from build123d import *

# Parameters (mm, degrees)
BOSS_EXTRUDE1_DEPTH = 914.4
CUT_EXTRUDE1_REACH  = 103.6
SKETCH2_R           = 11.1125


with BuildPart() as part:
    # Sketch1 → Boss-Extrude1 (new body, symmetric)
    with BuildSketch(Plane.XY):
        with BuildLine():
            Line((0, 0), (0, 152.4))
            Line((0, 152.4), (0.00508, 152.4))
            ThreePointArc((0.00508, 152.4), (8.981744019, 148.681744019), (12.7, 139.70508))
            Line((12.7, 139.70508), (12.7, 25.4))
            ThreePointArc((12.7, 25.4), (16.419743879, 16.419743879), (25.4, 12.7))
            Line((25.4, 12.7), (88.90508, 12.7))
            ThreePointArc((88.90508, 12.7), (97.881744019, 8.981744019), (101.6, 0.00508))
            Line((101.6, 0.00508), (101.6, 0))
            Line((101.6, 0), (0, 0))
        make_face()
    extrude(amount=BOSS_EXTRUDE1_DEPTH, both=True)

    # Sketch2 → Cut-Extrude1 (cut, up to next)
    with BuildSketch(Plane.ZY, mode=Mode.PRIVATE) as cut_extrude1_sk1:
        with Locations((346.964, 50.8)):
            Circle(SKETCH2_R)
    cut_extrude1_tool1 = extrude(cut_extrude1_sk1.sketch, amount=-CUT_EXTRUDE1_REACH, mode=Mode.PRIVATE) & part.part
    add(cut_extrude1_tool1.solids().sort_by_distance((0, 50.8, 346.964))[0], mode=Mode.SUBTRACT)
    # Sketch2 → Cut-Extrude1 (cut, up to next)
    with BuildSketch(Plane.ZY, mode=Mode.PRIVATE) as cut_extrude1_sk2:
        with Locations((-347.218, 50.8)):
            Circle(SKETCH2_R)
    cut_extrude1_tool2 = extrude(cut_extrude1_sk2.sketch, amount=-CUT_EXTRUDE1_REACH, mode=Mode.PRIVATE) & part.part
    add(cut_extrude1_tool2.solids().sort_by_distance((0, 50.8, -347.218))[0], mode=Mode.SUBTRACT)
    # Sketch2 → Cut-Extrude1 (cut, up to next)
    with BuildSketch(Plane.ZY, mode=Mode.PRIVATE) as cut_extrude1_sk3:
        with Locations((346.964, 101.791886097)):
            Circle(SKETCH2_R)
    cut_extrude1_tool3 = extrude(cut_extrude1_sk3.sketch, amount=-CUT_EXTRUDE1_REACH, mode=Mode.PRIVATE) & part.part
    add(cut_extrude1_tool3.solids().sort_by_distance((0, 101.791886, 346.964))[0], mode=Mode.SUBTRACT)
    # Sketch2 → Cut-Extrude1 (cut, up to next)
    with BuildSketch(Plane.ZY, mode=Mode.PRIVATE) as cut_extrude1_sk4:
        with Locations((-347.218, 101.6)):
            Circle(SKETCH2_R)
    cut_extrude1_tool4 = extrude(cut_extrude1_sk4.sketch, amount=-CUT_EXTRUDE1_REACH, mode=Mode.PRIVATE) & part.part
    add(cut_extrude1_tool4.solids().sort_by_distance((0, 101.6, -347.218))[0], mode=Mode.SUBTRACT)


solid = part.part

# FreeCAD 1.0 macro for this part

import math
import FreeCAD as App
import Part
import Sketcher
Q = App.Units.Quantity

doc = App.newDocument("Part")
body = doc.addObject("PartDesign::Body", "Body")

# Sketch on XY plane
sketch1 = doc.addObject("Sketcher::SketchObject", "Sketch")
body.addObject(sketch1)
sketch1.AttachmentSupport = (doc.XY_Plane, [""])
sketch1.MapMode = "FlatFace"
sketch1.addGeometry(Part.LineSegment(App.Vector(0, 152.4, 0), App.Vector(0, 0, 0)), False)
sketch1.addGeometry(Part.LineSegment(App.Vector(0, 0, 0), App.Vector(101.6, 0, 0)), False)
sketch1.addGeometry(Part.LineSegment(App.Vector(101.6, 0, 0), App.Vector(101.6, 0.005, 0)), False)
sketch1.addGeometry(Part.ArcOfCircle(Part.Circle(App.Vector(88.905, 0.005, 0), App.Vector(0, 0, 1), 12.695), math.radians(0), math.radians(90)), False)
sketch1.addGeometry(Part.LineSegment(App.Vector(88.905, 12.7, 0), App.Vector(25.4, 12.7, 0)), False)
sketch1.addGeometry(Part.ArcOfCircle(Part.Circle(App.Vector(25.4, 25.4, 0), App.Vector(0, 0, 1), 12.7), math.radians(180), math.radians(270)), False)
sketch1.addGeometry(Part.LineSegment(App.Vector(12.7, 25.4, 0), App.Vector(12.7, 139.705, 0)), False)
sketch1.addGeometry(Part.ArcOfCircle(Part.Circle(App.Vector(0.005, 139.705, 0), App.Vector(0, 0, 1), 12.695), math.radians(0), math.radians(90)), False)
sketch1.addGeometry(Part.LineSegment(App.Vector(0.005, 152.4, 0), App.Vector(0, 152.4, 0)), False)
sketch1.addConstraint(Sketcher.Constraint("Coincident", 0, 2, 1, 1))
sketch1.addConstraint(Sketcher.Constraint("Coincident", 1, 2, 2, 1))
sketch1.addConstraint(Sketcher.Constraint("Tangent", 2, 2, 3, 1))
sketch1.addConstraint(Sketcher.Constraint("Tangent", 3, 2, 4, 1))
sketch1.addConstraint(Sketcher.Constraint("Tangent", 4, 2, 5, 2))
sketch1.addConstraint(Sketcher.Constraint("Tangent", 5, 1, 6, 1))
sketch1.addConstraint(Sketcher.Constraint("Tangent", 6, 2, 7, 1))
sketch1.addConstraint(Sketcher.Constraint("Tangent", 7, 2, 8, 1))
sketch1.addConstraint(Sketcher.Constraint("Coincident", 8, 2, 0, 1))
sketch1.addConstraint(Sketcher.Constraint("Vertical", 0))
sketch1.addConstraint(Sketcher.Constraint("Horizontal", 1))
sketch1.addConstraint(Sketcher.Constraint("Horizontal", 4))
sketch1.addConstraint(Sketcher.Constraint("Vertical", 6))
sketch1.addConstraint(Sketcher.Constraint("Coincident", 0, 2, -1, 1))
sketch1.addConstraint(Sketcher.Constraint("Equal", 3, 7))
sketch1.addConstraint(Sketcher.Constraint("Horizontal", 3, 3, 2, 2))
sketch1.addConstraint(Sketcher.Constraint("Equal", 8, 2))
sketch1.addConstraint(Sketcher.Constraint("Radius", 5, Q("0.5 in")))
sketch1.addConstraint(Sketcher.Constraint("DistanceX", 1, 1, 1, 2, Q("4 in")))
sketch1.addConstraint(Sketcher.Constraint("DistanceY", 0, 2, 0, 1, Q("6 in")))
sketch1.addConstraint(Sketcher.Constraint("DistanceX", -1, 1, 5, 3, Q("1 in")))
sketch1.addConstraint(Sketcher.Constraint("DistanceY", -1, 1, 5, 3, Q("1 in")))
sketch1.addConstraint(Sketcher.Constraint("Radius", 3, Q("0.4998 in")))
pad1 = doc.addObject("PartDesign::Pad", "Pad")
body.addObject(pad1)
pad1.Profile = sketch1
pad1.Length = Q("72 in")
pad1.Midplane = True

# Sketch on YZ plane
sketch2 = doc.addObject("Sketcher::SketchObject", "Sketch001")
body.addObject(sketch2)
sketch2.AttachmentSupport = (doc.YZ_Plane, [""])
sketch2.MapMode = "FlatFace"
sketch2.addGeometry(Part.Circle(App.Vector(51, 347, 0), App.Vector(0, 0, 1), 11), False)
sketch2.addConstraint(Sketcher.Constraint("Diameter", 0, Q("0.875 in")))
sketch2.addConstraint(Sketcher.Constraint("DistanceX", -1, 1, 0, 3, Q("2 in")))
sketch2.addConstraint(Sketcher.Constraint("DistanceY", -1, 1, 0, 3, Q("13.66 in")))
pocket1 = doc.addObject("PartDesign::Pocket", "Pocket")
body.addObject(pocket1)
pocket1.Profile = sketch2
pocket1.Type = "UpToFirst"
pocket1.Reversed = True

# Sketch on YZ plane
sketch3 = doc.addObject("Sketcher::SketchObject", "Sketch002")
body.addObject(sketch3)
sketch3.AttachmentSupport = (doc.YZ_Plane, [""])
sketch3.MapMode = "FlatFace"
sketch3.addGeometry(Part.Circle(App.Vector(51, -347, 0), App.Vector(0, 0, 1), 11), False)
sketch3.addConstraint(Sketcher.Constraint("Diameter", 0, Q("0.875 in")))
sketch3.addConstraint(Sketcher.Constraint("DistanceX", -1, 1, 0, 3, Q("2 in")))
sketch3.addConstraint(Sketcher.Constraint("DistanceY", 0, 3, -1, 1, Q("13.67 in")))
pocket2 = doc.addObject("PartDesign::Pocket", "Pocket001")
body.addObject(pocket2)
pocket2.Profile = sketch3
pocket2.Type = "UpToFirst"
pocket2.Reversed = True

# Sketch on YZ plane
sketch4 = doc.addObject("Sketcher::SketchObject", "Sketch003")
body.addObject(sketch4)
sketch4.AttachmentSupport = (doc.YZ_Plane, [""])
sketch4.MapMode = "FlatFace"
sketch4.addGeometry(Part.Circle(App.Vector(102, 347, 0), App.Vector(0, 0, 1), 11), False)
sketch4.addConstraint(Sketcher.Constraint("Diameter", 0, Q("0.875 in")))
sketch4.addConstraint(Sketcher.Constraint("DistanceY", -1, 1, 0, 3, Q("13.66 in")))
sketch4.addConstraint(Sketcher.Constraint("DistanceX", -1, 1, 0, 3, Q("101.791886 mm")))
pocket3 = doc.addObject("PartDesign::Pocket", "Pocket002")
body.addObject(pocket3)
pocket3.Profile = sketch4
pocket3.Type = "UpToFirst"
pocket3.Reversed = True

# Sketch on YZ plane
sketch5 = doc.addObject("Sketcher::SketchObject", "Sketch004")
body.addObject(sketch5)
sketch5.AttachmentSupport = (doc.YZ_Plane, [""])
sketch5.MapMode = "FlatFace"
sketch5.addGeometry(Part.Circle(App.Vector(102, -347, 0), App.Vector(0, 0, 1), 11), False)
sketch5.addConstraint(Sketcher.Constraint("Diameter", 0, Q("0.875 in")))
sketch5.addConstraint(Sketcher.Constraint("DistanceX", -1, 1, 0, 3, Q("4 in")))
sketch5.addConstraint(Sketcher.Constraint("DistanceY", 0, 3, -1, 1, Q("13.67 in")))
pocket4 = doc.addObject("PartDesign::Pocket", "Pocket003")
body.addObject(pocket4)
pocket4.Profile = sketch5
pocket4.Type = "UpToFirst"
pocket4.Reversed = True

doc.recompute()
